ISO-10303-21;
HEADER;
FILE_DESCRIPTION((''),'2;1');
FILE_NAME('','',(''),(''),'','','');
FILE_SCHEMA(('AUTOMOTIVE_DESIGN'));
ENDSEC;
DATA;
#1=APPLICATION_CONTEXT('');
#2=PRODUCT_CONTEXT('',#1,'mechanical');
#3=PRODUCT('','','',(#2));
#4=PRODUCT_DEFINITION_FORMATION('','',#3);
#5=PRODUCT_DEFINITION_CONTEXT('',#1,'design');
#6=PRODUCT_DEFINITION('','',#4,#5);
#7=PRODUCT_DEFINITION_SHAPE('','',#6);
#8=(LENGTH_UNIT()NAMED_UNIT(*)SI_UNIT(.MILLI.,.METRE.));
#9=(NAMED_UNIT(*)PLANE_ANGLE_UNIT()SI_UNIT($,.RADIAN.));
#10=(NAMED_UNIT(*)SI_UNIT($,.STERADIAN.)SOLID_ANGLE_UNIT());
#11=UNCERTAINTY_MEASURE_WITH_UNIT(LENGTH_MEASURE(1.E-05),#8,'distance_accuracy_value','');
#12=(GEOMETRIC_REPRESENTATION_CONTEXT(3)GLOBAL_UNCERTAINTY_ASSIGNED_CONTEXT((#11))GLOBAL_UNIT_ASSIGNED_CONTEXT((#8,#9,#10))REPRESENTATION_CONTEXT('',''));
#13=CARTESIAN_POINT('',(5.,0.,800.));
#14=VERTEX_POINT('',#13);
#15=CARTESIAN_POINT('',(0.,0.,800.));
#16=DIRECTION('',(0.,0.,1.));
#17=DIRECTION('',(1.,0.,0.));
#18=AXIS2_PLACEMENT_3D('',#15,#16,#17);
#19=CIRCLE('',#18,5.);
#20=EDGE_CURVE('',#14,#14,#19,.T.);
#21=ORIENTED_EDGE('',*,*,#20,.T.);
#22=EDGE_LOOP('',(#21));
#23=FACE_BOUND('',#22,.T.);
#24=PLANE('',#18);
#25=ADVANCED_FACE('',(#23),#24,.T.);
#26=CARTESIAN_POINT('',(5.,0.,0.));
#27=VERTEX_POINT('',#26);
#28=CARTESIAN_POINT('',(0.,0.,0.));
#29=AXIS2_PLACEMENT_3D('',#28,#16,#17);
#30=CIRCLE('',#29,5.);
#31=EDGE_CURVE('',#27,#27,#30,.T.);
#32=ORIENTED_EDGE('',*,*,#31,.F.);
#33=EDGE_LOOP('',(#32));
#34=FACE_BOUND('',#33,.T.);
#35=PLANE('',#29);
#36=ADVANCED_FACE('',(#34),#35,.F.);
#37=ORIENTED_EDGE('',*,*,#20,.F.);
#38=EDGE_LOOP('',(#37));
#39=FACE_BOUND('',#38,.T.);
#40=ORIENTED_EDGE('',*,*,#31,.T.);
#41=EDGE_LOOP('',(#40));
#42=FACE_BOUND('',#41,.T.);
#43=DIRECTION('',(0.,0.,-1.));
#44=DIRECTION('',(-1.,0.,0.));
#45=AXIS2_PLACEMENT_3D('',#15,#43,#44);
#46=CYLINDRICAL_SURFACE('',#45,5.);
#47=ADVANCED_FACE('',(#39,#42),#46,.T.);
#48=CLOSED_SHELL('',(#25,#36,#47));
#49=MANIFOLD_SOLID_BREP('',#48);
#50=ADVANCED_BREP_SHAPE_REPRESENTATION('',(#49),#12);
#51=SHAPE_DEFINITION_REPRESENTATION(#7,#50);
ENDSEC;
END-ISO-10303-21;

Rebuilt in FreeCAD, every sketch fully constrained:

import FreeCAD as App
import Part
import Sketcher
from FreeCAD import Vector

doc = App.newDocument("Part")
params = doc.addObject("Spreadsheet::Sheet", "Params")
for row, (alias, value) in enumerate([
    ("sketch1_diameter", "10 mm"),
    ("pad1_length", "800 mm"),
], start=1):
    params.set(f"A{row}", alias)
    params.set(f"B{row}", "=" + value)
    params.setAlias(f"B{row}", alias)

body = doc.addObject("PartDesign::Body", "Body")

# Sketch on XY plane
sketch1 = doc.addObject("Sketcher::SketchObject", "Sketch")
body.addObject(sketch1)
sketch1.AttachmentSupport = (doc.XY_Plane, [""])
sketch1.MapMode = "FlatFace"
sketch1.addGeometry(Part.Circle(Vector(0, 0, 0), Vector(0, 0, 1), 5), False)
sketch1.addConstraint([
    Sketcher.Constraint("Coincident", 0, 3, -1, 1),
    Sketcher.Constraint("Diameter", 0, 10.0),
])
sketch1.setExpression("Constraints[1]", "Params.sketch1_diameter")
pad1 = doc.addObject("PartDesign::Pad", "Pad")
body.addObject(pad1)
pad1.Profile = sketch1
pad1.setExpression("Length", "Params.pad1_length")

doc.recompute()
